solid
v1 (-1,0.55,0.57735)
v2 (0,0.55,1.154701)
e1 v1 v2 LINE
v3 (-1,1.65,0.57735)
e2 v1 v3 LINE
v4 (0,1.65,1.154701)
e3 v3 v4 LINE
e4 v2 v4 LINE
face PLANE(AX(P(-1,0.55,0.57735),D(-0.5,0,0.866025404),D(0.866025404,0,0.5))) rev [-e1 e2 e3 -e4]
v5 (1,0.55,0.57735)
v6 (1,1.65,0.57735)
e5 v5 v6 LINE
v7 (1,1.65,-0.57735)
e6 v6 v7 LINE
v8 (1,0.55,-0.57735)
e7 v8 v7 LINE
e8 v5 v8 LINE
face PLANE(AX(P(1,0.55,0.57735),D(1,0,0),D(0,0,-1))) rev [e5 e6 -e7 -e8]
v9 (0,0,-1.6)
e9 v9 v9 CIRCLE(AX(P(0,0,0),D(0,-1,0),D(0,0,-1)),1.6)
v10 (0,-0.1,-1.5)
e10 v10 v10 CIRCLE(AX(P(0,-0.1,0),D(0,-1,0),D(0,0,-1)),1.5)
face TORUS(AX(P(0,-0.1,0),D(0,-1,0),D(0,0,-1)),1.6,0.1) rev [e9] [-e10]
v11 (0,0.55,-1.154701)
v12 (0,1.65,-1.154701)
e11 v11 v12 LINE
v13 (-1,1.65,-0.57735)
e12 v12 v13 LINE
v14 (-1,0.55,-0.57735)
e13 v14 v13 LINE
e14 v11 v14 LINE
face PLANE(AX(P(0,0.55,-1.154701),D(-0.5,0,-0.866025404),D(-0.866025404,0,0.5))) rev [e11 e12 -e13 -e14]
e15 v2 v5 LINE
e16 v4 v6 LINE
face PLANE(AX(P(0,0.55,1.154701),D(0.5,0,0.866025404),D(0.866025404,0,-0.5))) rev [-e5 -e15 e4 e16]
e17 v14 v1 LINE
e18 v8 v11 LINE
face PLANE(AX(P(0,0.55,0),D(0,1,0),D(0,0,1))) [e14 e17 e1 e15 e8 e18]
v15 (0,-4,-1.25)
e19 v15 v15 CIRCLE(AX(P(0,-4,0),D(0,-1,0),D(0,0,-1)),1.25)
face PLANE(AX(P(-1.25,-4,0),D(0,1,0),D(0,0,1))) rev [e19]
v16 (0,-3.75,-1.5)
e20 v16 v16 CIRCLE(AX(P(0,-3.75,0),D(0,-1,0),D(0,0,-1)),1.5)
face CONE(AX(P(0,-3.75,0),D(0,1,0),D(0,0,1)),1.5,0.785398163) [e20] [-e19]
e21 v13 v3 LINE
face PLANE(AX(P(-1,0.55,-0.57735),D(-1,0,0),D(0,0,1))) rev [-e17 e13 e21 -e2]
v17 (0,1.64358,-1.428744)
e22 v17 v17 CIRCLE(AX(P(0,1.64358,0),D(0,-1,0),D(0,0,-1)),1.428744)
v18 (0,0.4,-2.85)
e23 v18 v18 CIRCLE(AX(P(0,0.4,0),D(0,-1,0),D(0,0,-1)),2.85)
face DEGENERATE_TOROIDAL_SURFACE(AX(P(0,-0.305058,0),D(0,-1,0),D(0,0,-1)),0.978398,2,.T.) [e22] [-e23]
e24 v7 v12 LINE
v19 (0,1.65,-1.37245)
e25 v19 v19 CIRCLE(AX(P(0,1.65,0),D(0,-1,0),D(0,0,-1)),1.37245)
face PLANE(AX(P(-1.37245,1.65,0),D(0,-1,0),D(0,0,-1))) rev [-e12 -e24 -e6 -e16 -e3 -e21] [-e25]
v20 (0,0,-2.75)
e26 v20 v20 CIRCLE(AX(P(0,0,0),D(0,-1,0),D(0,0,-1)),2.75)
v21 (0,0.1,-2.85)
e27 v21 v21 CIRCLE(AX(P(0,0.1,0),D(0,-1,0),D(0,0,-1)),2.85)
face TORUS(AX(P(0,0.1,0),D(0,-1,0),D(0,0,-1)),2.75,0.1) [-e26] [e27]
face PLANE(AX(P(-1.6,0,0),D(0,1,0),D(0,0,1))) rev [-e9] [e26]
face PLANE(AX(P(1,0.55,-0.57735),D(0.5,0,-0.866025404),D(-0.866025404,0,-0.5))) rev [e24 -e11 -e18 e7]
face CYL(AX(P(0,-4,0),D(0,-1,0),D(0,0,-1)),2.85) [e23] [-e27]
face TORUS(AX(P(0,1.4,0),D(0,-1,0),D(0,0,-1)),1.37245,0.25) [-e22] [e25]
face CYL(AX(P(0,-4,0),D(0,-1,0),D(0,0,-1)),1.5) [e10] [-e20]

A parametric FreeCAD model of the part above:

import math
import FreeCAD as App
import Part
import Sketcher
Q = App.Units.Quantity


def add_polygon(sketch, points):
    """Adds a closed chain of lines whose ends are joined by coincident constraints."""
    first, n = sketch.GeometryCount, len(points)
    for a, b in zip(points, points[1:] + points[:1]):
        sketch.addGeometry(Part.LineSegment(App.Vector(*a, 0), App.Vector(*b, 0)), False)
    for i in range(n):
        sketch.addConstraint(Sketcher.Constraint("Coincident", first + i, 2, first + (i + 1) % n, 1))

doc = App.newDocument("Part")
body = doc.addObject("PartDesign::Body", "Body")

# Sketch on XY plane
sketch1 = body.newObject("Sketcher::SketchObject", "Sketch")
sketch1.AttachmentSupport = (doc.getObject("XY_Plane"), [""])
sketch1.MapMode = "FlatFace"
sketch1.addGeometry(Part.LineSegment(App.Vector(-1.5, -0.1, 0), App.Vector(-1.5, -3.75, 0)), False)
sketch1.addGeometry(Part.LineSegment(App.Vector(-1.5, -3.75, 0), App.Vector(-1.25, -4, 0)), False)
sketch1.addGeometry(Part.LineSegment(App.Vector(-1.25, -4, 0), App.Vector(0, -4, 0)), False)
sketch1.addGeometry(Part.LineSegment(App.Vector(0, -4, 0), App.Vector(0, 1.65, 0)), False)
sketch1.addGeometry(Part.LineSegment(App.Vector(0, 1.65, 0), App.Vector(-1.37, 1.65, 0)), False)
sketch1.addGeometry(Part.ArcOfCircle(Part.Circle(App.Vector(-1.37, 1.4, 0), App.Vector(0, 0, 1), 0.25), math.radians(90), math.radians(103.01)), False)
sketch1.addGeometry(Part.ArcOfCircle(Part.Circle(App.Vector(-0.98, -0.31, 0), App.Vector(0, 0, 1), 2), math.radians(103), math.radians(159)), False)
sketch1.addGeometry(Part.LineSegment(App.Vector(-2.85, 0.4, 0), App.Vector(-2.85, 0.1, 0)), False)
sketch1.addGeometry(Part.ArcOfCircle(Part.Circle(App.Vector(-2.75, 0.1, 0), App.Vector(0, 0, 1), 0.1), math.radians(180), math.radians(270)), False)
sketch1.addGeometry(Part.LineSegment(App.Vector(-2.75, 0, 0), App.Vector(-1.6, 0, 0)), False)
sketch1.addGeometry(Part.ArcOfCircle(Part.Circle(App.Vector(-1.6, -0.1, 0), App.Vector(0, 0, 1), 0.1), math.radians(0), math.radians(90)), False)
sketch1.addConstraint(Sketcher.Constraint("Coincident", 0, 2, 1, 1))
sketch1.addConstraint(Sketcher.Constraint("Coincident", 1, 2, 2, 1))
sketch1.addConstraint(Sketcher.Constraint("Coincident", 2, 2, 3, 1))
sketch1.addConstraint(Sketcher.Constraint("Coincident", 3, 2, 4, 1))
sketch1.addConstraint(Sketcher.Constraint("Tangent", 4, 2, 5, 1))
sketch1.addConstraint(Sketcher.Constraint("Tangent", 5, 2, 6, 1))
sketch1.addConstraint(Sketcher.Constraint("Coincident", 6, 2, 7, 1))
sketch1.addConstraint(Sketcher.Constraint("Tangent", 7, 2, 8, 1))
sketch1.addConstraint(Sketcher.Constraint("Tangent", 8, 2, 9, 1))
sketch1.addConstraint(Sketcher.Constraint("Tangent", 9, 2, 10, 2))
sketch1.addConstraint(Sketcher.Constraint("Tangent", 10, 1, 0, 1))
sketch1.addConstraint(Sketcher.Constraint("Vertical", 0))
sketch1.addConstraint(Sketcher.Constraint("Horizontal", 2))
sketch1.addConstraint(Sketcher.Constraint("Vertical", 3))
sketch1.addConstraint(Sketcher.Constraint("Horizontal", 4))
sketch1.addConstraint(Sketcher.Constraint("Vertical", 7))
sketch1.addConstraint(Sketcher.Constraint("Horizontal", 9))
sketch1.addConstraint(Sketcher.Constraint("Equal", 8, 10))
sketch1.addConstraint(Sketcher.Constraint("PointOnObject", 2, 2, -2))
sketch1.addConstraint(Sketcher.Constraint("PointOnObject", 8, 2, -1))
sketch1.addConstraint(Sketcher.Constraint("Radius", 6, Q("2 mm")))
sketch1.addConstraint(Sketcher.Constraint("Radius", 8, Q("0.1 mm")))
sketch1.addConstraint(Sketcher.Constraint("Angle", 1, Q("-45 deg")))
sketch1.addConstraint(Sketcher.Constraint("Radius", 5, Q("0.25 mm")))
sketch1.addConstraint(Sketcher.Constraint("DistanceY", 7, 2, 7, 1, Q("0.3 mm")))
sketch1.addConstraint(Sketcher.Constraint("DistanceY", 1, 2, -1, 1, Q("4 mm")))
sketch1.addConstraint(Sketcher.Constraint("DistanceY", 6, 2, 5, 3, Q("1 mm")))
sketch1.addConstraint(Sketcher.Constraint("DistanceX", 2, 1, 2, 2, Q("1.25 mm")))
sketch1.addConstraint(Sketcher.Constraint("DistanceX", 9, 1, 9, 2, Q("1.15 mm")))
sketch1.addConstraint(Sketcher.Constraint("DistanceY", 0, 2, 0, 1, Q("3.65 mm")))
sketch1.addConstraint(Sketcher.Constraint("DistanceX", 4, 2, 4, 1, Q("1.37245 mm")))
revolution = body.newObject("PartDesign::Revolution", "Revolution")
revolution.Profile = sketch1
revolution.ReferenceAxis = (sketch1, ["V_Axis"])
revolution.Angle = 360

# Sketch on XZ plane
sketch2 = body.newObject("Sketcher::SketchObject", "Sketch001")
sketch2.AttachmentSupport = (doc.getObject("XZ_Plane"), [""])
sketch2.MapMode = "FlatFace"
sketch2.AttachmentOffset = App.Placement(App.Vector(0, 0, -1.65), App.Rotation())
add_polygon(sketch2, [(-1, -0.6), (-1, 0.6), (0, 1.2), (1, 0.6), (1, -0.6), (0, -1.2)])  # lines 0-5
sketch2.addConstraint(Sketcher.Constraint("Vertical", 0))
sketch2.addConstraint(Sketcher.Constraint("Vertical", 3))
sketch2.addConstraint(Sketcher.Constraint("Symmetric", 0, 2, 3, 2, -1, 1))
sketch2.addConstraint(Sketcher.Constraint("Symmetric", 1, 2, 4, 2, -1, 1))
sketch2.addConstraint(Sketcher.Constraint("PointOnObject", 1, 2, -2))
sketch2.addConstraint(Sketcher.Constraint("Parallel", 2, 5))
sketch2.addConstraint(Sketcher.Constraint("Horizontal", 0, 2, 2, 2))
sketch2.addConstraint(Sketcher.Constraint("Angle", 1, Q("30 deg")))
sketch2.addConstraint(Sketcher.Constraint("DistanceX", 0, 2, -1, 1, Q("1 mm")))
sketch2.addConstraint(Sketcher.Constraint("DistanceY", 0, 1, 0, 2, Q("1.154701 mm")))
pocket1 = body.newObject("PartDesign::Pocket", "Pocket")
pocket1.Profile = sketch2
pocket1.Length = 1.1
pocket1.Reversed = True

doc.recompute()
